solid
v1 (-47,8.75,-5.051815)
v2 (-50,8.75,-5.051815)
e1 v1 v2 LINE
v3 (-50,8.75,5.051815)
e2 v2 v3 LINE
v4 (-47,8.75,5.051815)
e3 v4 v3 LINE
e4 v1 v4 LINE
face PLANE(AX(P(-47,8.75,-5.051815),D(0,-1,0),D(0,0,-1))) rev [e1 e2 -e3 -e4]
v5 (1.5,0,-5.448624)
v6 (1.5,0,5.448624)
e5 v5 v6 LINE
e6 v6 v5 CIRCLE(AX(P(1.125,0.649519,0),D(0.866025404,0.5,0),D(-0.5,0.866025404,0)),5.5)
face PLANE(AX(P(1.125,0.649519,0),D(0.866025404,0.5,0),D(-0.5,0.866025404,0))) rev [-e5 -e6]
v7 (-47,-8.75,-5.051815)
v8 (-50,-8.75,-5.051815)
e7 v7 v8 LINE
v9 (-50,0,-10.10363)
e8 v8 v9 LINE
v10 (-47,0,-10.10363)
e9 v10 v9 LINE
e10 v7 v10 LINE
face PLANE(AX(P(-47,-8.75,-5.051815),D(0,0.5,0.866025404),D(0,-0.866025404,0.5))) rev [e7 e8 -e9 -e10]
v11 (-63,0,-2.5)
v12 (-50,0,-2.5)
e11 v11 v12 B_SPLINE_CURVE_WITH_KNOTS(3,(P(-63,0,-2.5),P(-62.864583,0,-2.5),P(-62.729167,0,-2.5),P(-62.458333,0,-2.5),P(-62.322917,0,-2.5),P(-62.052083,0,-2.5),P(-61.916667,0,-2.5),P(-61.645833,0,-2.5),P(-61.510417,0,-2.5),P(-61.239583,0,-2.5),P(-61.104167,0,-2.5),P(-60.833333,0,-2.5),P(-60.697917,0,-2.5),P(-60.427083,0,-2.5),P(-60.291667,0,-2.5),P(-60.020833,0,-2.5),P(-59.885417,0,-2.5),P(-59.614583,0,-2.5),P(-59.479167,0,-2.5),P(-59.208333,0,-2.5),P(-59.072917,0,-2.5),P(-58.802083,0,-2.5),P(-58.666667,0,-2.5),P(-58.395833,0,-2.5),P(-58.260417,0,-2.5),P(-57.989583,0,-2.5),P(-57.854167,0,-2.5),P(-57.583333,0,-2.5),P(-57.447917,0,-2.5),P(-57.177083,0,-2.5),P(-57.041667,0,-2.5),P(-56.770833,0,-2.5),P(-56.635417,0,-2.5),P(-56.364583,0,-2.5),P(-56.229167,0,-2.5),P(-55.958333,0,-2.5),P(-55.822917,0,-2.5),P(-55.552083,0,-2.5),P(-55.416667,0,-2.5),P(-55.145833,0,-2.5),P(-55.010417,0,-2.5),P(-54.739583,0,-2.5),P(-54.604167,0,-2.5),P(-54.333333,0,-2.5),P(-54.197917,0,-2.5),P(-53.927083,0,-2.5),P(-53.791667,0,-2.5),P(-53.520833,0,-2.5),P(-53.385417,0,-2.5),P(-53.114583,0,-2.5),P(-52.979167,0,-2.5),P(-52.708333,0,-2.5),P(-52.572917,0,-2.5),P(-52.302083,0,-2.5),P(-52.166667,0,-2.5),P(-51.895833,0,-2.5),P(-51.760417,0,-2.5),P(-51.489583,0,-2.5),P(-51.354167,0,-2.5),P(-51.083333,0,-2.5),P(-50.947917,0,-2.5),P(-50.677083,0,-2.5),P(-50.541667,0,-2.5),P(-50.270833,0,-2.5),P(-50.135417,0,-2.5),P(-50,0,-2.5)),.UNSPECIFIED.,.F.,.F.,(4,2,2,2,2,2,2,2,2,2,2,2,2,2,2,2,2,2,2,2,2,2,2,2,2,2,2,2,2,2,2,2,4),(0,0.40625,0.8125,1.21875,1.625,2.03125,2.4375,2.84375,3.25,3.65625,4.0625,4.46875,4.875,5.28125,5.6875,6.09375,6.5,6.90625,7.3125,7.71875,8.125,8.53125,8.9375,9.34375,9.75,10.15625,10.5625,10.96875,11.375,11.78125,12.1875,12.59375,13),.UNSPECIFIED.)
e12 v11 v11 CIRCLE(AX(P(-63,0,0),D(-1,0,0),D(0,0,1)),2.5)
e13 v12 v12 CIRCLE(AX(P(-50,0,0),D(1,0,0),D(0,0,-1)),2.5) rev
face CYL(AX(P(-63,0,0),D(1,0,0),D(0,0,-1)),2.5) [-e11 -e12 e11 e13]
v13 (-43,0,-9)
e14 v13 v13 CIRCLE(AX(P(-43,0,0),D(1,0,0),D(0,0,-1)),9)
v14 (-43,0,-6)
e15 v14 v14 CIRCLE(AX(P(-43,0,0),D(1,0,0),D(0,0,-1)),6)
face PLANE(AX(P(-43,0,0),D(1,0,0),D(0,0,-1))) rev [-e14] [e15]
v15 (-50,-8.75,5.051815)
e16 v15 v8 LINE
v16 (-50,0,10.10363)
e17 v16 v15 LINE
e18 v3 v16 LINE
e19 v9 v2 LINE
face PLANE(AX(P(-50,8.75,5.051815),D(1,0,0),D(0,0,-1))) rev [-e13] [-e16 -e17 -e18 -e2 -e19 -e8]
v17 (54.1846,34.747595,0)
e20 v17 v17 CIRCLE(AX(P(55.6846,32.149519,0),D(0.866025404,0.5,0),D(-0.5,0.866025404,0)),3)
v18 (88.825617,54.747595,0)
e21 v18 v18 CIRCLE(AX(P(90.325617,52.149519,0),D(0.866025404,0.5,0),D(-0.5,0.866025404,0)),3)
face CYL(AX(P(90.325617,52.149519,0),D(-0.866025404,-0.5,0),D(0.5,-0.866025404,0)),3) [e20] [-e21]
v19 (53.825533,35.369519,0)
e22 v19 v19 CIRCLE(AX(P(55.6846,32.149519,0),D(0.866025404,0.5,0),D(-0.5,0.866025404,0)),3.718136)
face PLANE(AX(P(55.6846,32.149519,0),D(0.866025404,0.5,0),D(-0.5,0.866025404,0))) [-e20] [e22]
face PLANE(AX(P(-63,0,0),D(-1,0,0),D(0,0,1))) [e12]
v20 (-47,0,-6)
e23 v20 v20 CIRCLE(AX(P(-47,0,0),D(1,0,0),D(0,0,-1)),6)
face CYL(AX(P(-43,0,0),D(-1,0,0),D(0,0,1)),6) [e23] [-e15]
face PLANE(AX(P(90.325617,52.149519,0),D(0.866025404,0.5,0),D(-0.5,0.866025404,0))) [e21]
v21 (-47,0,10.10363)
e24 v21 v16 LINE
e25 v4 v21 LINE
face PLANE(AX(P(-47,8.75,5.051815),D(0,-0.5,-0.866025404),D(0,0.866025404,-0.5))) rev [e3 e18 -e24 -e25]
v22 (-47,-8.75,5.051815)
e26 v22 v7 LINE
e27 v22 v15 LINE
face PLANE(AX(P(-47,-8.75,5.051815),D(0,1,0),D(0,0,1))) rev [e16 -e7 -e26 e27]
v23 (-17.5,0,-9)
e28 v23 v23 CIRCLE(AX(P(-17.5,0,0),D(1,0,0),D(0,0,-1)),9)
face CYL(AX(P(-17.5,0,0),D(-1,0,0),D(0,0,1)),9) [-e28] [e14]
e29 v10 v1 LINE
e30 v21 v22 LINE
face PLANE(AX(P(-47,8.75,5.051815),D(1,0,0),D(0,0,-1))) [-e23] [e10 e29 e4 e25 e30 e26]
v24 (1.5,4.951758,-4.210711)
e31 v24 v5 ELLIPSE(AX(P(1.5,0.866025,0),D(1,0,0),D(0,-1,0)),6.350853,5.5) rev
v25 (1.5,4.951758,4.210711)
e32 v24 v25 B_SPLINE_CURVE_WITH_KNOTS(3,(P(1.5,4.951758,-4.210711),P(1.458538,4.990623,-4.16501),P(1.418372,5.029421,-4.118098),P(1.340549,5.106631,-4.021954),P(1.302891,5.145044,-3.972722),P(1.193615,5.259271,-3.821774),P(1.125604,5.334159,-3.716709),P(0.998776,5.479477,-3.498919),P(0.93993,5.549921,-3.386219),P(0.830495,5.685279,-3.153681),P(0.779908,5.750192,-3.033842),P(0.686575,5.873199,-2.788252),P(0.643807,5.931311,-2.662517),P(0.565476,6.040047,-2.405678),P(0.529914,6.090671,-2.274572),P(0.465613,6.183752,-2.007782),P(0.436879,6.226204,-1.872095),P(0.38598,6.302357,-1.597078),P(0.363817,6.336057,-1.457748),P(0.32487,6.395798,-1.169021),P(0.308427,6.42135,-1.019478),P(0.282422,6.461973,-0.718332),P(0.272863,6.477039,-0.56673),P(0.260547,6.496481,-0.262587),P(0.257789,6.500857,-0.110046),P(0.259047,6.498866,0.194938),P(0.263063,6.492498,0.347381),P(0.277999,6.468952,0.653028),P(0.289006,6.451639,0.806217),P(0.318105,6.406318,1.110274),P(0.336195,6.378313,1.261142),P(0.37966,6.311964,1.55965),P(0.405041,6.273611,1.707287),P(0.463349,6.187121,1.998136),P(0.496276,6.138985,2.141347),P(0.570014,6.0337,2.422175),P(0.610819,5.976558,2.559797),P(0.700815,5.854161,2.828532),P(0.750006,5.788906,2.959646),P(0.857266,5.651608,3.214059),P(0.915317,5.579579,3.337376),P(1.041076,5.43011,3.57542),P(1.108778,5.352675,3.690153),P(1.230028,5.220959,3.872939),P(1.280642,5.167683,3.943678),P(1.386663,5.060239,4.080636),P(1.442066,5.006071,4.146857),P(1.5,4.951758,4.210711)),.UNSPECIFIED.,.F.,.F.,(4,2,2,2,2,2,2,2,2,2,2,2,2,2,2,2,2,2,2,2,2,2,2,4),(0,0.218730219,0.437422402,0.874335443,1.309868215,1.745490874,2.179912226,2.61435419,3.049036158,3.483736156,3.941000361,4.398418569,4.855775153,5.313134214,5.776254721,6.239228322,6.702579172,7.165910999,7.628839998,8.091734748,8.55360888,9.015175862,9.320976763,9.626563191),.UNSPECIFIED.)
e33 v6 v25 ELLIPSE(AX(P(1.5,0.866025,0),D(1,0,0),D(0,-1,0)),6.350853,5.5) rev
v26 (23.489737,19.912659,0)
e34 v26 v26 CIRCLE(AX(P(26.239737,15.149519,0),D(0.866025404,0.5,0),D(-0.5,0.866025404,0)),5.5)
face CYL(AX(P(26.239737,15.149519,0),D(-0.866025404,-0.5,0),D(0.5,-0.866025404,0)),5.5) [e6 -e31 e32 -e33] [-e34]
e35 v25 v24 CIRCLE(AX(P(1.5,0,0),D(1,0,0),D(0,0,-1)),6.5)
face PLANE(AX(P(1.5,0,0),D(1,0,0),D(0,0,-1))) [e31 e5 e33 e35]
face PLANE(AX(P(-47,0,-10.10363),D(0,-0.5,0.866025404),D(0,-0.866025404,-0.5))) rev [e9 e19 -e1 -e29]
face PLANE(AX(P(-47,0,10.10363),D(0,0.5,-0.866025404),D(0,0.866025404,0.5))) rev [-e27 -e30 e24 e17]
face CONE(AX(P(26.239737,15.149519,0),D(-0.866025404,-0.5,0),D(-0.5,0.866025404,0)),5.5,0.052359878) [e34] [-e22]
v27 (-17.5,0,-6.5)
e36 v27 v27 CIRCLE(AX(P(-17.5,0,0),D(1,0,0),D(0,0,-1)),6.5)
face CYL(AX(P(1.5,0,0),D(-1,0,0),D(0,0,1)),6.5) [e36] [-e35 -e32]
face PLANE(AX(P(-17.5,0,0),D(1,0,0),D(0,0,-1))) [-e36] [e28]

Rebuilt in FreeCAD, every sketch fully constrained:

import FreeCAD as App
import Part
import Sketcher
Q = App.Units.Quantity


def add_polygon(sketch, points):
    """Adds a closed chain of lines whose ends are joined by coincident constraints."""
    first, n = sketch.GeometryCount, len(points)
    for a, b in zip(points, points[1:] + points[:1]):
        sketch.addGeometry(Part.LineSegment(App.Vector(*a, 0), App.Vector(*b, 0)), False)
    for i in range(n):
        sketch.addConstraint(Sketcher.Constraint("Coincident", first + i, 2, first + (i + 1) % n, 1))

doc = App.newDocument("Part")
params = doc.addObject("Spreadsheet::Sheet", "Params")
for row, (alias, value) in enumerate([
    ("pad1_length", "3 mm"),
    ("sketch2_diameter", "12 mm"),
    ("pad2_length", "4 mm"),
    ("sketch3_diameter", "18 mm"),
    ("pad3_length", "25.5 mm"),
    ("sketch4_diameter", "13 mm"),
    ("pad4_length", "19 mm"),
    ("sketch5_diameter", "5 mm"),
    ("pad5_length", "13 mm"),
    ("sketch6_diameter", "11 mm"),
    ("pad6_length", "29 mm"),
    ("sketch7_diameter", "11 mm"),
    ("pad7_length", "34 mm"),
    ("pad7_taper", "-3 deg"),
    ("sketch8_diameter", "6 mm"),
    ("pad8_length", "40 mm"),
], start=1):
    params.set(f"A{row}", alias)
    params.set(f"B{row}", "=" + value)
    params.setAlias(f"B{row}", alias)

body = doc.addObject("PartDesign::Body", "Body")

sketch1 = body.newObject("Sketcher::SketchObject", "Sketch")
sketch1.AttachmentSupport = (doc.getObject("YZ_Plane"), [""])
sketch1.MapMode = "FlatFace"
sketch1.AttachmentOffset = App.Placement(App.Vector(0, 0, -50), App.Rotation())
add_polygon(sketch1, [(9, 5), (0, 10), (-9, 5), (-9, -5), (0, -10), (9, -5)])
sketch1.addConstraint([
    Sketcher.Constraint("Vertical", 2),
    Sketcher.Constraint("Vertical", 5),
    Sketcher.Constraint("Symmetric", 0, 2, 3, 2, -1, 1),
    Sketcher.Constraint("Symmetric", 1, 2, 4, 2, -1, 1),
    Sketcher.Constraint("PointOnObject", 0, 2, -2),
    Sketcher.Constraint("Parallel", 0, 3),
    Sketcher.Constraint("Horizontal", 2, 2, 4, 2),
    Sketcher.Constraint("Angle", 0, Q("150 deg")),
    Sketcher.Constraint("DistanceX", 2, 2, 4, 2, Q("17.5 mm")),
    Sketcher.Constraint("DistanceY", 2, 2, 2, 1, Q("10.10363 mm")),
])
pad1 = body.newObject("PartDesign::Pad", "Pad")
pad1.Profile = sketch1
pad1.setExpression("Length", "Params.pad1_length")

sketch2 = body.newObject("Sketcher::SketchObject", "Sketch001")
sketch2.AttachmentSupport = (doc.getObject("YZ_Plane"), [""])
sketch2.MapMode = "FlatFace"
sketch2.AttachmentOffset = App.Placement(App.Vector(0, 0, -47), App.Rotation())
sketch2.addGeometry(Part.Circle(App.Vector(0, 0, 0), App.Vector(0, 0, 1), 6), False)
sketch2.addConstraint([
    Sketcher.Constraint("Coincident", 0, 3, -1, 1),
    Sketcher.Constraint("Diameter", 0, Q("12 mm")),
])
sketch2.setExpression("Constraints[1]", "Params.sketch2_diameter")
pad2 = body.newObject("PartDesign::Pad", "Pad001")
pad2.Profile = sketch2
pad2.setExpression("Length", "Params.pad2_length")

sketch3 = body.newObject("Sketcher::SketchObject", "Sketch002")
sketch3.AttachmentSupport = (doc.getObject("YZ_Plane"), [""])
sketch3.MapMode = "FlatFace"
sketch3.AttachmentOffset = App.Placement(App.Vector(0, 0, -43), App.Rotation())
sketch3.addGeometry(Part.Circle(App.Vector(0, 0, 0), App.Vector(0, 0, 1), 9), False)
sketch3.addConstraint([
    Sketcher.Constraint("Coincident", 0, 3, -1, 1),
    Sketcher.Constraint("Diameter", 0, Q("18 mm")),
])
sketch3.setExpression("Constraints[1]", "Params.sketch3_diameter")
pad3 = body.newObject("PartDesign::Pad", "Pad002")
pad3.Profile = sketch3
pad3.setExpression("Length", "Params.pad3_length")

sketch4 = body.newObject("Sketcher::SketchObject", "Sketch003")
sketch4.AttachmentSupport = (doc.getObject("YZ_Plane"), [""])
sketch4.MapMode = "FlatFace"
sketch4.AttachmentOffset = App.Placement(App.Vector(0, 0, -17.5), App.Rotation())
sketch4.addGeometry(Part.Circle(App.Vector(0, 0, 0), App.Vector(0, 0, 1), 6), False)
sketch4.addConstraint([
    Sketcher.Constraint("Coincident", 0, 3, -1, 1),
    Sketcher.Constraint("Diameter", 0, Q("13 mm")),
])
sketch4.setExpression("Constraints[1]", "Params.sketch4_diameter")
pad4 = body.newObject("PartDesign::Pad", "Pad003")
pad4.Profile = sketch4
pad4.setExpression("Length", "Params.pad4_length")

sketch5 = body.newObject("Sketcher::SketchObject", "Sketch004")
sketch5.AttachmentSupport = (doc.getObject("YZ_Plane"), [""])
sketch5.MapMode = "FlatFace"
sketch5.AttachmentOffset = App.Placement(App.Vector(0, 0, -50), App.Rotation())
sketch5.addGeometry(Part.Circle(App.Vector(0, 0, 0), App.Vector(0, 0, 1), 2.5), False)
sketch5.addConstraint([
    Sketcher.Constraint("Coincident", 0, 3, -1, 1),
    Sketcher.Constraint("Diameter", 0, Q("5 mm")),
])
sketch5.setExpression("Constraints[1]", "Params.sketch5_diameter")
pad5 = body.newObject("PartDesign::Pad", "Pad004")
pad5.Profile = sketch5
pad5.setExpression("Length", "Params.pad5_length")
pad5.Reversed = True

sketch6 = body.newObject("Sketcher::SketchObject", "Sketch005")
sketch6.Placement = App.Placement(App.Vector(1.125, 0.649519, 0), App.Rotation(App.Vector(0, 0, -1), App.Vector(-0.5, 0.866025404, 0), App.Vector(0.866025404, 0.5, 0), "ZXY"))
sketch6.addGeometry(Part.Circle(App.Vector(0, 0, 0), App.Vector(0, 0, 1), 6), False)
sketch6.addConstraint([
    Sketcher.Constraint("Coincident", 0, 3, -1, 1),
    Sketcher.Constraint("Diameter", 0, Q("11 mm")),
])
sketch6.setExpression("Constraints[1]", "Params.sketch6_diameter")
pad6 = body.newObject("PartDesign::Pad", "Pad005")
pad6.Profile = sketch6
pad6.setExpression("Length", "Params.pad6_length")

sketch7 = body.newObject("Sketcher::SketchObject", "Sketch006")
sketch7.Placement = App.Placement(App.Vector(26.239737, 15.149519, 0), App.Rotation(App.Vector(0, 0, -1), App.Vector(-0.5, 0.866025404, 0), App.Vector(0.866025404, 0.5, 0), "ZXY"))
sketch7.addGeometry(Part.Circle(App.Vector(0, 0, 0), App.Vector(0, 0, 1), 6), False)
sketch7.addConstraint([
    Sketcher.Constraint("Coincident", 0, 3, -1, 1),
    Sketcher.Constraint("Diameter", 0, Q("11 mm")),
])
sketch7.setExpression("Constraints[1]", "Params.sketch7_diameter")
pad7 = body.newObject("PartDesign::Pad", "Pad006")
pad7.Profile = sketch7
pad7.setExpression("Length", "Params.pad7_length")
pad7.setExpression("TaperAngle", "Params.pad7_taper")

sketch8 = body.newObject("Sketcher::SketchObject", "Sketch007")
sketch8.Placement = App.Placement(App.Vector(55.6846, 32.149519, 0), App.Rotation(App.Vector(0, 0, -1), App.Vector(-0.5, 0.866025404, 0), App.Vector(0.866025404, 0.5, 0), "ZXY"))
sketch8.addGeometry(Part.Circle(App.Vector(0, 0, 0), App.Vector(0, 0, 1), 3), False)
sketch8.addConstraint([
    Sketcher.Constraint("Coincident", 0, 3, -1, 1),
    Sketcher.Constraint("Diameter", 0, Q("6 mm")),
])
sketch8.setExpression("Constraints[1]", "Params.sketch8_diameter")
pad8 = body.newObject("PartDesign::Pad", "Pad007")
pad8.Profile = sketch8
pad8.setExpression("Length", "Params.pad8_length")

doc.recompute()
